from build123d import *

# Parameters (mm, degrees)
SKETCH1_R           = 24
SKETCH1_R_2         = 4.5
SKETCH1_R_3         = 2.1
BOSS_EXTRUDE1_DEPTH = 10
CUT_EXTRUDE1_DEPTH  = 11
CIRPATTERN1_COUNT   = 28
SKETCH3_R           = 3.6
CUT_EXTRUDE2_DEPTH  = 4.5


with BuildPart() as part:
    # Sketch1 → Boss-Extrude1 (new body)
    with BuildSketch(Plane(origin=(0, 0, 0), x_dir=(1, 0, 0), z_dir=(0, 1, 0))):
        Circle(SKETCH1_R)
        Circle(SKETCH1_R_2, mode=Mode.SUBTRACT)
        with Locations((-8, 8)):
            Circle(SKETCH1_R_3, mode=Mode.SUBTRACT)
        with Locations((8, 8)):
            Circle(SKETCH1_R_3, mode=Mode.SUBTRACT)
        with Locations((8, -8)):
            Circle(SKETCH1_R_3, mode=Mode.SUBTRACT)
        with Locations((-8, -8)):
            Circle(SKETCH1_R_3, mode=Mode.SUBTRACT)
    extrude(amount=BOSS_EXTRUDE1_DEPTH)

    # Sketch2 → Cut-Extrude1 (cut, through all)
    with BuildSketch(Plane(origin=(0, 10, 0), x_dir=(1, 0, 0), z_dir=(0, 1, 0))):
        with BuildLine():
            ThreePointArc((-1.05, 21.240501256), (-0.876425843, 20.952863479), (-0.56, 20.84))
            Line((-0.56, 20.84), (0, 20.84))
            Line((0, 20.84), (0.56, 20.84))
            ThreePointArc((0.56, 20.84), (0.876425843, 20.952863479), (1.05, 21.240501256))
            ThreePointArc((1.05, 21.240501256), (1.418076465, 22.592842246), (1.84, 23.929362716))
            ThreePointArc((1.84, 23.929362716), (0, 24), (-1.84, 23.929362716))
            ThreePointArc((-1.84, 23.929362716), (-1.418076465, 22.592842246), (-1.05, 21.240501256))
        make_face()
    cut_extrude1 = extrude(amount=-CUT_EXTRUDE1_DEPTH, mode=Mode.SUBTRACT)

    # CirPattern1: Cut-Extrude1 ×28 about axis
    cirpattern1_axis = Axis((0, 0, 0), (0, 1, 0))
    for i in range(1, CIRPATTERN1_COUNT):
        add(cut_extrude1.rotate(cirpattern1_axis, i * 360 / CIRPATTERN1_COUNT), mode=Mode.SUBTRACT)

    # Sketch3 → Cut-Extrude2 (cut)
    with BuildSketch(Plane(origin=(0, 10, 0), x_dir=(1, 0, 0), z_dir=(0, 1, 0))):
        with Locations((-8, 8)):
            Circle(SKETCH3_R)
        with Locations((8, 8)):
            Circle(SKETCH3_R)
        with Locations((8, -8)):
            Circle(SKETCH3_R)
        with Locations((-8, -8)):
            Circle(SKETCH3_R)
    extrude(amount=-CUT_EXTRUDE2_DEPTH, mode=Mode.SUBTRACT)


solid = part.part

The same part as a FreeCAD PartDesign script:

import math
import FreeCAD as App
import Part
import Sketcher
Q = App.Units.Quantity

doc = App.newDocument("Part")
body = doc.addObject("PartDesign::Body", "Body")

# Sketch on XZ plane
sketch1 = body.newObject("Sketcher::SketchObject", "Sketch")
sketch1.AttachmentSupport = (doc.getObject("XZ_Plane"), [""])
sketch1.MapMode = "FlatFace"
sketch1.addGeometry(Part.Circle(App.Vector(0, 0, 0), App.Vector(0, 0, 1), 24), False)
sketch1.addGeometry(Part.Circle(App.Vector(-8, 8, 0), App.Vector(0, 0, 1), 2.1), False)
sketch1.addGeometry(Part.Circle(App.Vector(8, 8, 0), App.Vector(0, 0, 1), 2.1), False)
sketch1.addGeometry(Part.Circle(App.Vector(-8, -8, 0), App.Vector(0, 0, 1), 2.1), False)
sketch1.addGeometry(Part.Circle(App.Vector(0, 0, 0), App.Vector(0, 0, 1), 4.5), False)
sketch1.addGeometry(Part.Circle(App.Vector(8, -8, 0), App.Vector(0, 0, 1), 2.1), False)
sketch1.addConstraint(Sketcher.Constraint("Coincident", 0, 3, -1, 1))
sketch1.addConstraint(Sketcher.Constraint("Coincident", 4, 3, -1, 1))
sketch1.addConstraint(Sketcher.Constraint("Equal", 1, 2))
sketch1.addConstraint(Sketcher.Constraint("Equal", 2, 3))
sketch1.addConstraint(Sketcher.Constraint("Equal", 3, 5))
sketch1.addConstraint(Sketcher.Constraint("Symmetric", 2, 3, 3, 3, -1, 1))
sketch1.addConstraint(Sketcher.Constraint("Symmetric", 1, 3, 5, 3, -1, 1))
sketch1.addConstraint(Sketcher.Constraint("Symmetric", 1, 3, 2, 3, -2))
sketch1.addConstraint(Sketcher.Constraint("Diameter", 0, Q("48 mm")))
sketch1.addConstraint(Sketcher.Constraint("Diameter", 4, Q("9 mm")))
sketch1.addConstraint(Sketcher.Constraint("Diameter", 1, Q("4.2 mm")))
sketch1.addConstraint(Sketcher.Constraint("DistanceX", 1, 3, -1, 1, Q("8 mm")))
sketch1.addConstraint(Sketcher.Constraint("DistanceY", -1, 1, 1, 3, Q("8 mm")))
pad1 = body.newObject("PartDesign::Pad", "Pad")
pad1.Profile = sketch1
pad1.Length = 10
pad1.Reversed = True

# Sketch on XZ plane
sketch2 = body.newObject("Sketcher::SketchObject", "Sketch001")
sketch2.AttachmentSupport = (doc.getObject("XZ_Plane"), [""])
sketch2.MapMode = "FlatFace"
sketch2.AttachmentOffset = App.Placement(App.Vector(0, 0, -10), App.Rotation())
sketch2.addGeometry(Part.ArcOfCircle(Part.Circle(App.Vector(-0.6, -21.3, 0), App.Vector(0, 0, 1), 0.5), math.radians(90), math.radians(169)), False)
sketch2.addGeometry(Part.LineSegment(App.Vector(-0.6, -20.8, 0), App.Vector(0.6, -20.8, 0)), False)
sketch2.addGeometry(Part.ArcOfCircle(Part.Circle(App.Vector(0.6, -21.3, 0), App.Vector(0, 0, 1), 0.5), math.radians(11), math.radians(90)), False)
sketch2.addGeometry(Part.ArcOfCircle(Part.Circle(App.Vector(35, -12.7, 0), App.Vector(0, 0, 1), 35), math.radians(-165.92), math.radians(-161.33)), False)
sketch2.addGeometry(Part.ArcOfCircle(Part.Circle(App.Vector(0, 0, 0), App.Vector(0, 0, 1), 24), math.radians(-94.4), math.radians(-85.6)), False)
sketch2.addGeometry(Part.ArcOfCircle(Part.Circle(App.Vector(-35, -12.7, 0), App.Vector(0, 0, 1), 35), math.radians(-18.67), math.radians(-14.08)), False)
sketch2.addConstraint(Sketcher.Constraint("Tangent", 0, 1, 1, 1))
sketch2.addConstraint(Sketcher.Constraint("Tangent", 1, 2, 2, 2))
sketch2.addConstraint(Sketcher.Constraint("Coincident", 2, 1, 3, 1))
sketch2.addConstraint(Sketcher.Constraint("Coincident", 3, 2, 4, 2))
sketch2.addConstraint(Sketcher.Constraint("Coincident", 4, 1, 5, 1))
sketch2.addConstraint(Sketcher.Constraint("Coincident", 5, 2, 0, 2))
sketch2.addConstraint(Sketcher.Constraint("Horizontal", 1))
sketch2.addConstraint(Sketcher.Constraint("Coincident", 4, 3, -1, 1))
sketch2.addConstraint(Sketcher.Constraint("Equal", 0, 2))
sketch2.addConstraint(Sketcher.Constraint("Equal", 3, 5))
sketch2.addConstraint(Sketcher.Constraint("Symmetric", 3, 3, 5, 3, -2))
sketch2.addConstraint(Sketcher.Constraint("Horizontal", 2, 1, 5, 2))
sketch2.addConstraint(Sketcher.Constraint("Radius", 3, Q("35 mm")))
sketch2.addConstraint(Sketcher.Constraint("Radius", 4, Q("24 mm")))
sketch2.addConstraint(Sketcher.Constraint("Radius", 0, Q("0.5 mm")))
sketch2.addConstraint(Sketcher.Constraint("DistanceX", 1, 1, 1, 2, Q("1.12 mm")))
sketch2.addConstraint(Sketcher.Constraint("DistanceX", 0, 3, 3, 2, Q("2.4 mm")))
sketch2.addConstraint(Sketcher.Constraint("DistanceX", 5, 2, 2, 1, Q("2.1 mm")))
sketch2.addConstraint(Sketcher.Constraint("DistanceY", 0, 3, -1, 1, Q("21.34 mm")))
pocket1 = body.newObject("PartDesign::Pocket", "Pocket")
pocket1.Profile = sketch2
pocket1.Type = "ThroughAll"
pocket1.Reversed = True
doc.recompute()

polarpattern = body.newObject("PartDesign::PolarPattern", "PolarPattern")
polarpattern.Originals = [pocket1]
polarpattern.Axis = (doc.getObject("Y_Axis"), [""])
polarpattern.Angle = 360
polarpattern.Occurrences = 28
body.Tip = polarpattern

# Sketch on XZ plane
sketch3 = body.newObject("Sketcher::SketchObject", "Sketch002")
sketch3.AttachmentSupport = (doc.getObject("XZ_Plane"), [""])
sketch3.MapMode = "FlatFace"
sketch3.AttachmentOffset = App.Placement(App.Vector(0, 0, -10), App.Rotation())
sketch3.addGeometry(Part.Circle(App.Vector(-8, -8, 0), App.Vector(0, 0, 1), 3.6), False)
sketch3.addGeometry(Part.Circle(App.Vector(8, -8, 0), App.Vector(0, 0, 1), 3.6), False)
sketch3.addGeometry(Part.Circle(App.Vector(8, 8, 0), App.Vector(0, 0, 1), 3.6), False)
sketch3.addGeometry(Part.Circle(App.Vector(-8, 8, 0), App.Vector(0, 0, 1), 3.6), False)
sketch3.addConstraint(Sketcher.Constraint("Equal", 0, 1))
sketch3.addConstraint(Sketcher.Constraint("Equal", 1, 2))
sketch3.addConstraint(Sketcher.Constraint("Equal", 2, 3))
sketch3.addConstraint(Sketcher.Constraint("Symmetric", 0, 3, 2, 3, -1, 1))
sketch3.addConstraint(Sketcher.Constraint("Symmetric", 1, 3, 3, 3, -1, 1))
sketch3.addConstraint(Sketcher.Constraint("Symmetric", 0, 3, 1, 3, -2))
sketch3.addConstraint(Sketcher.Constraint("Diameter", 0, Q("7.2 mm")))
sketch3.addConstraint(Sketcher.Constraint("DistanceX", 0, 3, -1, 1, Q("8 mm")))
sketch3.addConstraint(Sketcher.Constraint("DistanceY", 0, 3, -1, 1, Q("8 mm")))
pocket2 = body.newObject("PartDesign::Pocket", "Pocket001")
pocket2.Profile = sketch3
pocket2.Length = 4.5
pocket2.Reversed = True

doc.recompute()
